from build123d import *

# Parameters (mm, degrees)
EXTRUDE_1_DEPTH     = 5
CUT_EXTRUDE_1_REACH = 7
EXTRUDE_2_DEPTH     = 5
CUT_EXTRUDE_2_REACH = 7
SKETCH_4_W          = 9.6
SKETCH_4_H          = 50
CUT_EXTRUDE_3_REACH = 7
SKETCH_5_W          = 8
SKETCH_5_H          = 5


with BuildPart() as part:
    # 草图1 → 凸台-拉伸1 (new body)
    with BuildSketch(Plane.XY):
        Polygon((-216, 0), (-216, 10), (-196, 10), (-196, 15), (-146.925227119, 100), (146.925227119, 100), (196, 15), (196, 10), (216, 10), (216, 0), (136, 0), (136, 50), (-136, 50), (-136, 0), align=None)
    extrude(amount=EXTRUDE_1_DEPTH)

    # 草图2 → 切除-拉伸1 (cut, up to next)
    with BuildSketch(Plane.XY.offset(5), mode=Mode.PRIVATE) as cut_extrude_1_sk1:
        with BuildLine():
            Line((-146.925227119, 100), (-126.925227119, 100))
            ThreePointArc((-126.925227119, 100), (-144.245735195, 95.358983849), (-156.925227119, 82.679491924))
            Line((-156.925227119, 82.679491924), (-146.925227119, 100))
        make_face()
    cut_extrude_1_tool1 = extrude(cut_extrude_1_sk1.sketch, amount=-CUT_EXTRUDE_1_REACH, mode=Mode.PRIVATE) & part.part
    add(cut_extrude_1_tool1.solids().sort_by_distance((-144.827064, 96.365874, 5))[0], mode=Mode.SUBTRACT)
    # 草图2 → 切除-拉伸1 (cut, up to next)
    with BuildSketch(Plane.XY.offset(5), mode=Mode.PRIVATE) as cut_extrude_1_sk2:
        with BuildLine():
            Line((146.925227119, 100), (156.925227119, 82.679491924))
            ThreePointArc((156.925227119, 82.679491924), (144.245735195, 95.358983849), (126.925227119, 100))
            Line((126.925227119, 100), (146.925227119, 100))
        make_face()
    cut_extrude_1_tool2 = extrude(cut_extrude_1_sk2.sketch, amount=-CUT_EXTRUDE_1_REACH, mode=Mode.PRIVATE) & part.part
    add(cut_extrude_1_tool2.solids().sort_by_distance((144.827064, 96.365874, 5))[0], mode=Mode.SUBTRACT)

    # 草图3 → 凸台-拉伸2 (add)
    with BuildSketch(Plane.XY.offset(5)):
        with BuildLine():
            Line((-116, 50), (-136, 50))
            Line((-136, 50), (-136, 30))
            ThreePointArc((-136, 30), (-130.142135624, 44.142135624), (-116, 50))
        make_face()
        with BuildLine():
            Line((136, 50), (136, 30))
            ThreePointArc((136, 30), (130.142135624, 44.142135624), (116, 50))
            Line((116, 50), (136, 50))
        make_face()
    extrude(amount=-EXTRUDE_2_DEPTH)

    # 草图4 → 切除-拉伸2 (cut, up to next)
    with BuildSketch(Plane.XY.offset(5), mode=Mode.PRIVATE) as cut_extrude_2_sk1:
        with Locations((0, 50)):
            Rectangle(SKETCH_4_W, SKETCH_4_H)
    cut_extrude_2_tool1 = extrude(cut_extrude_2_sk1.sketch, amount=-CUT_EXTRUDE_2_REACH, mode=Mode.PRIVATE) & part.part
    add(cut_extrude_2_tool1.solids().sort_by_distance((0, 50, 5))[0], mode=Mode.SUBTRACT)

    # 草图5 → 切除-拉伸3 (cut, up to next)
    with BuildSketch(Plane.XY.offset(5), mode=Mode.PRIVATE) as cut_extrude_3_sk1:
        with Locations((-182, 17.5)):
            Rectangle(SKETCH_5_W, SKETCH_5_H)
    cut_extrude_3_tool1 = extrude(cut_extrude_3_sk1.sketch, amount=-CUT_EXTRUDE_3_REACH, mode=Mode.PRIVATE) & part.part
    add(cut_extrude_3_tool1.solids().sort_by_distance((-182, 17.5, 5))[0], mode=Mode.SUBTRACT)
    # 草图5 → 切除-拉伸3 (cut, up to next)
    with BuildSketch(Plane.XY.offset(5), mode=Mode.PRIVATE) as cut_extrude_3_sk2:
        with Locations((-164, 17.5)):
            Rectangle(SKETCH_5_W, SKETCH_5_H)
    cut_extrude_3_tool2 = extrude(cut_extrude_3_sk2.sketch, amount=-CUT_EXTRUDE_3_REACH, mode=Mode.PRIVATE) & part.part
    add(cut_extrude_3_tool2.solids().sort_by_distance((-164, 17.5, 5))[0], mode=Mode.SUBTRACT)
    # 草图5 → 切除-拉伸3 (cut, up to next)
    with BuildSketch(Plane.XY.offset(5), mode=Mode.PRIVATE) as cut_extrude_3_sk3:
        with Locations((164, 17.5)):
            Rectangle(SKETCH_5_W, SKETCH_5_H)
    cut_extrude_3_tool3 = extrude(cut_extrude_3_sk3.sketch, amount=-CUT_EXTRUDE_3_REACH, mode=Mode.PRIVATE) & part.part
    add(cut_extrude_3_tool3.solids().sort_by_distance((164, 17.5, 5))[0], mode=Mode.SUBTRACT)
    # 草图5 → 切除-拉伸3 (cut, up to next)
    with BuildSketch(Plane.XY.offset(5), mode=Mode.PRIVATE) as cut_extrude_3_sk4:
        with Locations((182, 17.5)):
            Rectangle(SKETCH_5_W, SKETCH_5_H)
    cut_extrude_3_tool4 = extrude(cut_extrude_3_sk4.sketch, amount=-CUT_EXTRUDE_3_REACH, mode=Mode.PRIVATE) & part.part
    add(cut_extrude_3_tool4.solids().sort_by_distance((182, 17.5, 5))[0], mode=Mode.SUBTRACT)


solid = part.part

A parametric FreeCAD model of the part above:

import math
import FreeCAD as App
import Part
import Sketcher
from FreeCAD import Vector
Q = App.Units.Quantity


def add_polygon(sketch, points):
    """Adds a closed chain of lines whose ends are joined by coincident constraints."""
    first, n = sketch.GeometryCount, len(points)
    for a, b in zip(points, points[1:] + points[:1]):
        sketch.addGeometry(Part.LineSegment(App.Vector(*a, 0), App.Vector(*b, 0)), False)
    for i in range(n):
        sketch.addConstraint(Sketcher.Constraint("Coincident", first + i, 2, first + (i + 1) % n, 1))

doc = App.newDocument("Part")
body = doc.addObject("PartDesign::Body", "Body")

# Sketch on XY plane
sketch1 = body.newObject("Sketcher::SketchObject", "Sketch")
sketch1.AttachmentSupport = (doc.getObject("XY_Plane"), [""])
sketch1.MapMode = "FlatFace"
add_polygon(sketch1, [(-216, 10), (-216, 0), (-136, 0), (-136, 50), (136, 50), (136, 0), (216, 0), (216, 10), (196, 10), (196, 15), (147, 100), (-147, 100), (-196, 15), (-196, 10)])  # lines 0-13
sketch1.addConstraint([
    Sketcher.Constraint("Vertical", 0),
    Sketcher.Constraint("Horizontal", 1),
    Sketcher.Constraint("Vertical", 2),
    Sketcher.Constraint("Horizontal", 3),
    Sketcher.Constraint("Vertical", 4),
    Sketcher.Constraint("Horizontal", 5),
    Sketcher.Constraint("Vertical", 6),
    Sketcher.Constraint("Horizontal", 7),
    Sketcher.Constraint("Vertical", 8),
    Sketcher.Constraint("Horizontal", 10),
    Sketcher.Constraint("Vertical", 12),
    Sketcher.Constraint("Horizontal", 13),
    Sketcher.Constraint("Symmetric", 1, 2, 4, 2, -1, 1),
    Sketcher.Constraint("Symmetric", 0, 2, 5, 2, -2),
    Sketcher.Constraint("Symmetric", 8, 2, 11, 2, -2),
    Sketcher.Constraint("Horizontal", 7, 2, 12, 2),
    Sketcher.Constraint("Equal", 9, 11),
    Sketcher.Constraint("DistanceX", 1, 1, 1, 2, Q("80 mm")),
    Sketcher.Constraint("DistanceX", 3, 1, 3, 2, Q("272 mm")),
    Sketcher.Constraint("DistanceX", 7, 2, 7, 1, Q("20 mm")),
    Sketcher.Constraint("DistanceY", 0, 2, 0, 1, Q("10 mm")),
    Sketcher.Constraint("DistanceY", 2, 1, 2, 2, Q("50 mm")),
    Sketcher.Constraint("DistanceY", 8, 1, 8, 2, Q("5 mm")),
    Sketcher.Constraint("Angle", 9, Q("120 deg")),
    Sketcher.Constraint("DistanceY", -1, 1, 9, 2, Q("100 mm")),
])
pad1 = body.newObject("PartDesign::Pad", "Pad")
pad1.Profile = sketch1
pad1.Length = 5

# Sketch on XY plane
sketch2 = body.newObject("Sketcher::SketchObject", "Sketch001")
sketch2.AttachmentSupport = (doc.getObject("XY_Plane"), [""])
sketch2.MapMode = "FlatFace"
sketch2.AttachmentOffset = App.Placement(Vector(0, 0, 5), App.Rotation())
sketch2.addGeometry([
    Part.LineSegment(Vector(-127, 100, 0), Vector(-147, 100, 0)),
    Part.LineSegment(Vector(-147, 100, 0), Vector(-157, 83, 0)),
    Part.ArcOfCircle(Part.Circle(Vector(-127, 65, 0), Vector(0, 0, 1), 35), math.radians(90), math.radians(150)),
], False)
sketch2.addConstraint([
    Sketcher.Constraint("Coincident", 0, 2, 1, 1),
    Sketcher.Constraint("Tangent", 1, 2, 2, 2),
    Sketcher.Constraint("Tangent", 2, 1, 0, 1),
    Sketcher.Constraint("Horizontal", 0),
    Sketcher.Constraint("DistanceX", 0, 2, 0, 1, Q("20 mm")),
    Sketcher.Constraint("Angle", 1, Q("-120 deg")),
    Sketcher.Constraint("DistanceY", -1, 1, 0, 2, Q("100 mm")),
    Sketcher.Constraint("DistanceX", 2, 3, -1, 1, Q("126.925227 mm")),
])
pocket1 = body.newObject("PartDesign::Pocket", "Pocket")
pocket1.Profile = sketch2
pocket1.Type = "UpToFirst"

# Sketch on XY plane
sketch3 = body.newObject("Sketcher::SketchObject", "Sketch002")
sketch3.AttachmentSupport = (doc.getObject("XY_Plane"), [""])
sketch3.MapMode = "FlatFace"
sketch3.AttachmentOffset = App.Placement(Vector(0, 0, 5), App.Rotation())
sketch3.addGeometry([
    Part.LineSegment(Vector(157, 83, 0), Vector(147, 100, 0)),
    Part.LineSegment(Vector(147, 100, 0), Vector(127, 100, 0)),
    Part.ArcOfCircle(Part.Circle(Vector(127, 65, 0), Vector(0, 0, 1), 35), math.radians(30), math.radians(90)),
], False)
sketch3.addConstraint([
    Sketcher.Constraint("Coincident", 0, 2, 1, 1),
    Sketcher.Constraint("Tangent", 1, 2, 2, 2),
    Sketcher.Constraint("Tangent", 2, 1, 0, 1),
    Sketcher.Constraint("Horizontal", 1),
    Sketcher.Constraint("DistanceX", 1, 2, 1, 1, Q("20 mm")),
    Sketcher.Constraint("Angle", 0, Q("120 deg")),
    Sketcher.Constraint("DistanceY", -1, 1, 0, 2, Q("100 mm")),
    Sketcher.Constraint("DistanceX", -1, 1, 2, 3, Q("126.925227 mm")),
])
pocket2 = body.newObject("PartDesign::Pocket", "Pocket001")
pocket2.Profile = sketch3
pocket2.Type = "UpToFirst"

# Sketch on XY plane
sketch4 = body.newObject("Sketcher::SketchObject", "Sketch003")
sketch4.AttachmentSupport = (doc.getObject("XY_Plane"), [""])
sketch4.MapMode = "FlatFace"
sketch4.AttachmentOffset = App.Placement(Vector(0, 0, 5), App.Rotation())
sketch4.addGeometry([
    Part.LineSegment(Vector(-116, 50, 0), Vector(-136, 50, 0)),  # 0
    Part.LineSegment(Vector(-136, 50, 0), Vector(-136, 30, 0)),  # 1
    Part.ArcOfCircle(Part.Circle(Vector(-116, 30, 0), Vector(0, 0, 1), 20), math.radians(90), math.radians(180)),  # 2
    Part.LineSegment(Vector(136, 30, 0), Vector(136, 50, 0)),  # 3
    Part.LineSegment(Vector(136, 50, 0), Vector(116, 50, 0)),  # 4
    Part.ArcOfCircle(Part.Circle(Vector(116, 30, 0), Vector(0, 0, 1), 20), math.radians(0), math.radians(90)),  # 5
], False)
sketch4.addConstraint([
    Sketcher.Constraint("Coincident", 0, 2, 1, 1),
    Sketcher.Constraint("Tangent", 1, 2, 2, 2),
    Sketcher.Constraint("Tangent", 2, 1, 0, 1),
    Sketcher.Constraint("Coincident", 3, 2, 4, 1),
    Sketcher.Constraint("Tangent", 4, 2, 5, 2),
    Sketcher.Constraint("Tangent", 5, 1, 3, 1),
    Sketcher.Constraint("Horizontal", 0),
    Sketcher.Constraint("Vertical", 1),
    Sketcher.Constraint("Vertical", 3),
    Sketcher.Constraint("Horizontal", 4),
    Sketcher.Constraint("Equal", 2, 5),
    Sketcher.Constraint("Symmetric", 2, 3, 5, 3, -2),
    Sketcher.Constraint("Radius", 2, Q("20 mm")),
    Sketcher.Constraint("DistanceX", 2, 3, -1, 1, Q("116 mm")),
    Sketcher.Constraint("DistanceY", -1, 1, 2, 3, Q("30 mm")),
])
pad2 = body.newObject("PartDesign::Pad", "Pad001")
pad2.Profile = sketch4
pad2.Length = 5
pad2.Reversed = True

# Sketch on XY plane
sketch5 = body.newObject("Sketcher::SketchObject", "Sketch004")
sketch5.AttachmentSupport = (doc.getObject("XY_Plane"), [""])
sketch5.MapMode = "FlatFace"
sketch5.AttachmentOffset = App.Placement(Vector(0, 0, 5), App.Rotation())
add_polygon(sketch5, [(-5, 75), (-5, 25), (5, 25), (5, 75)])  # lines 0-3
sketch5.addConstraint([
    Sketcher.Constraint("Vertical", 0),
    Sketcher.Constraint("Horizontal", 1),
    Sketcher.Constraint("Vertical", 2),
    Sketcher.Constraint("Horizontal", 3),
    Sketcher.Constraint("DistanceY", 0, 2, 0, 1, Q("50 mm")),
    Sketcher.Constraint("DistanceX", 1, 1, 1, 2, Q("9.6 mm")),
    Sketcher.Constraint("DistanceY", -1, 1, 0, 2, Q("25 mm")),
    Sketcher.Constraint("DistanceX", 0, 2, -1, 1, Q("4.8 mm")),
])
pocket3 = body.newObject("PartDesign::Pocket", "Pocket002")
pocket3.Profile = sketch5
pocket3.Type = "UpToFirst"

# Sketch on XY plane
sketch6 = body.newObject("Sketcher::SketchObject", "Sketch005")
sketch6.AttachmentSupport = (doc.getObject("XY_Plane"), [""])
sketch6.MapMode = "FlatFace"
sketch6.AttachmentOffset = App.Placement(Vector(0, 0, 5), App.Rotation())
add_polygon(sketch6, [(-186, 20), (-186, 15), (-178, 15), (-178, 20)])  # lines 0-3
sketch6.addConstraint([
    Sketcher.Constraint("Vertical", 0),
    Sketcher.Constraint("Horizontal", 1),
    Sketcher.Constraint("Vertical", 2),
    Sketcher.Constraint("Horizontal", 3),
    Sketcher.Constraint("DistanceX", 1, 1, 1, 2, Q("8 mm")),
    Sketcher.Constraint("DistanceY", 0, 2, 0, 1, Q("5 mm")),
    Sketcher.Constraint("DistanceX", 0, 2, -1, 1, Q("186 mm")),
    Sketcher.Constraint("DistanceY", -1, 1, 0, 2, Q("15 mm")),
])
pocket4 = body.newObject("PartDesign::Pocket", "Pocket003")
pocket4.Profile = sketch6
pocket4.Type = "UpToFirst"

# Sketch on XY plane
sketch7 = body.newObject("Sketcher::SketchObject", "Sketch006")
sketch7.AttachmentSupport = (doc.getObject("XY_Plane"), [""])
sketch7.MapMode = "FlatFace"
sketch7.AttachmentOffset = App.Placement(Vector(0, 0, 5), App.Rotation())
add_polygon(sketch7, [(-168, 20), (-168, 15), (-160, 15), (-160, 20)])  # lines 0-3
sketch7.addConstraint([
    Sketcher.Constraint("Vertical", 0),
    Sketcher.Constraint("Horizontal", 1),
    Sketcher.Constraint("Vertical", 2),
    Sketcher.Constraint("Horizontal", 3),
    Sketcher.Constraint("DistanceX", 1, 1, 1, 2, Q("8 mm")),
    Sketcher.Constraint("DistanceY", 0, 2, 0, 1, Q("5 mm")),
    Sketcher.Constraint("DistanceX", 0, 2, -1, 1, Q("168 mm")),
    Sketcher.Constraint("DistanceY", -1, 1, 0, 2, Q("15 mm")),
])
pocket5 = body.newObject("PartDesign::Pocket", "Pocket004")
pocket5.Profile = sketch7
pocket5.Type = "UpToFirst"

# Sketch on XY plane
sketch8 = body.newObject("Sketcher::SketchObject", "Sketch007")
sketch8.AttachmentSupport = (doc.getObject("XY_Plane"), [""])
sketch8.MapMode = "FlatFace"
sketch8.AttachmentOffset = App.Placement(Vector(0, 0, 5), App.Rotation())
add_polygon(sketch8, [(160, 20), (160, 15), (168, 15), (168, 20)])  # lines 0-3
sketch8.addConstraint([
    Sketcher.Constraint("Vertical", 0),
    Sketcher.Constraint("Horizontal", 1),
    Sketcher.Constraint("Vertical", 2),
    Sketcher.Constraint("Horizontal", 3),
    Sketcher.Constraint("DistanceX", 1, 1, 1, 2, Q("8 mm")),
    Sketcher.Constraint("DistanceY", 0, 2, 0, 1, Q("5 mm")),
    Sketcher.Constraint("DistanceX", -1, 1, 0, 2, Q("160 mm")),
    Sketcher.Constraint("DistanceY", -1, 1, 0, 2, Q("15 mm")),
])
pocket6 = body.newObject("PartDesign::Pocket", "Pocket005")
pocket6.Profile = sketch8
pocket6.Type = "UpToFirst"

# Sketch on XY plane
sketch9 = body.newObject("Sketcher::SketchObject", "Sketch008")
sketch9.AttachmentSupport = (doc.getObject("XY_Plane"), [""])
sketch9.MapMode = "FlatFace"
sketch9.AttachmentOffset = App.Placement(Vector(0, 0, 5), App.Rotation())
add_polygon(sketch9, [(178, 20), (178, 15), (186, 15), (186, 20)])  # lines 0-3
sketch9.addConstraint([
    Sketcher.Constraint("Vertical", 0),
    Sketcher.Constraint("Horizontal", 1),
    Sketcher.Constraint("Vertical", 2),
    Sketcher.Constraint("Horizontal", 3),
    Sketcher.Constraint("DistanceX", 1, 1, 1, 2, Q("8 mm")),
    Sketcher.Constraint("DistanceY", 0, 2, 0, 1, Q("5 mm")),
    Sketcher.Constraint("DistanceX", -1, 1, 0, 2, Q("178 mm")),
    Sketcher.Constraint("DistanceY", -1, 1, 0, 2, Q("15 mm")),
])
pocket7 = body.newObject("PartDesign::Pocket", "Pocket006")
pocket7.Profile = sketch9
pocket7.Type = "UpToFirst"

doc.recompute()
